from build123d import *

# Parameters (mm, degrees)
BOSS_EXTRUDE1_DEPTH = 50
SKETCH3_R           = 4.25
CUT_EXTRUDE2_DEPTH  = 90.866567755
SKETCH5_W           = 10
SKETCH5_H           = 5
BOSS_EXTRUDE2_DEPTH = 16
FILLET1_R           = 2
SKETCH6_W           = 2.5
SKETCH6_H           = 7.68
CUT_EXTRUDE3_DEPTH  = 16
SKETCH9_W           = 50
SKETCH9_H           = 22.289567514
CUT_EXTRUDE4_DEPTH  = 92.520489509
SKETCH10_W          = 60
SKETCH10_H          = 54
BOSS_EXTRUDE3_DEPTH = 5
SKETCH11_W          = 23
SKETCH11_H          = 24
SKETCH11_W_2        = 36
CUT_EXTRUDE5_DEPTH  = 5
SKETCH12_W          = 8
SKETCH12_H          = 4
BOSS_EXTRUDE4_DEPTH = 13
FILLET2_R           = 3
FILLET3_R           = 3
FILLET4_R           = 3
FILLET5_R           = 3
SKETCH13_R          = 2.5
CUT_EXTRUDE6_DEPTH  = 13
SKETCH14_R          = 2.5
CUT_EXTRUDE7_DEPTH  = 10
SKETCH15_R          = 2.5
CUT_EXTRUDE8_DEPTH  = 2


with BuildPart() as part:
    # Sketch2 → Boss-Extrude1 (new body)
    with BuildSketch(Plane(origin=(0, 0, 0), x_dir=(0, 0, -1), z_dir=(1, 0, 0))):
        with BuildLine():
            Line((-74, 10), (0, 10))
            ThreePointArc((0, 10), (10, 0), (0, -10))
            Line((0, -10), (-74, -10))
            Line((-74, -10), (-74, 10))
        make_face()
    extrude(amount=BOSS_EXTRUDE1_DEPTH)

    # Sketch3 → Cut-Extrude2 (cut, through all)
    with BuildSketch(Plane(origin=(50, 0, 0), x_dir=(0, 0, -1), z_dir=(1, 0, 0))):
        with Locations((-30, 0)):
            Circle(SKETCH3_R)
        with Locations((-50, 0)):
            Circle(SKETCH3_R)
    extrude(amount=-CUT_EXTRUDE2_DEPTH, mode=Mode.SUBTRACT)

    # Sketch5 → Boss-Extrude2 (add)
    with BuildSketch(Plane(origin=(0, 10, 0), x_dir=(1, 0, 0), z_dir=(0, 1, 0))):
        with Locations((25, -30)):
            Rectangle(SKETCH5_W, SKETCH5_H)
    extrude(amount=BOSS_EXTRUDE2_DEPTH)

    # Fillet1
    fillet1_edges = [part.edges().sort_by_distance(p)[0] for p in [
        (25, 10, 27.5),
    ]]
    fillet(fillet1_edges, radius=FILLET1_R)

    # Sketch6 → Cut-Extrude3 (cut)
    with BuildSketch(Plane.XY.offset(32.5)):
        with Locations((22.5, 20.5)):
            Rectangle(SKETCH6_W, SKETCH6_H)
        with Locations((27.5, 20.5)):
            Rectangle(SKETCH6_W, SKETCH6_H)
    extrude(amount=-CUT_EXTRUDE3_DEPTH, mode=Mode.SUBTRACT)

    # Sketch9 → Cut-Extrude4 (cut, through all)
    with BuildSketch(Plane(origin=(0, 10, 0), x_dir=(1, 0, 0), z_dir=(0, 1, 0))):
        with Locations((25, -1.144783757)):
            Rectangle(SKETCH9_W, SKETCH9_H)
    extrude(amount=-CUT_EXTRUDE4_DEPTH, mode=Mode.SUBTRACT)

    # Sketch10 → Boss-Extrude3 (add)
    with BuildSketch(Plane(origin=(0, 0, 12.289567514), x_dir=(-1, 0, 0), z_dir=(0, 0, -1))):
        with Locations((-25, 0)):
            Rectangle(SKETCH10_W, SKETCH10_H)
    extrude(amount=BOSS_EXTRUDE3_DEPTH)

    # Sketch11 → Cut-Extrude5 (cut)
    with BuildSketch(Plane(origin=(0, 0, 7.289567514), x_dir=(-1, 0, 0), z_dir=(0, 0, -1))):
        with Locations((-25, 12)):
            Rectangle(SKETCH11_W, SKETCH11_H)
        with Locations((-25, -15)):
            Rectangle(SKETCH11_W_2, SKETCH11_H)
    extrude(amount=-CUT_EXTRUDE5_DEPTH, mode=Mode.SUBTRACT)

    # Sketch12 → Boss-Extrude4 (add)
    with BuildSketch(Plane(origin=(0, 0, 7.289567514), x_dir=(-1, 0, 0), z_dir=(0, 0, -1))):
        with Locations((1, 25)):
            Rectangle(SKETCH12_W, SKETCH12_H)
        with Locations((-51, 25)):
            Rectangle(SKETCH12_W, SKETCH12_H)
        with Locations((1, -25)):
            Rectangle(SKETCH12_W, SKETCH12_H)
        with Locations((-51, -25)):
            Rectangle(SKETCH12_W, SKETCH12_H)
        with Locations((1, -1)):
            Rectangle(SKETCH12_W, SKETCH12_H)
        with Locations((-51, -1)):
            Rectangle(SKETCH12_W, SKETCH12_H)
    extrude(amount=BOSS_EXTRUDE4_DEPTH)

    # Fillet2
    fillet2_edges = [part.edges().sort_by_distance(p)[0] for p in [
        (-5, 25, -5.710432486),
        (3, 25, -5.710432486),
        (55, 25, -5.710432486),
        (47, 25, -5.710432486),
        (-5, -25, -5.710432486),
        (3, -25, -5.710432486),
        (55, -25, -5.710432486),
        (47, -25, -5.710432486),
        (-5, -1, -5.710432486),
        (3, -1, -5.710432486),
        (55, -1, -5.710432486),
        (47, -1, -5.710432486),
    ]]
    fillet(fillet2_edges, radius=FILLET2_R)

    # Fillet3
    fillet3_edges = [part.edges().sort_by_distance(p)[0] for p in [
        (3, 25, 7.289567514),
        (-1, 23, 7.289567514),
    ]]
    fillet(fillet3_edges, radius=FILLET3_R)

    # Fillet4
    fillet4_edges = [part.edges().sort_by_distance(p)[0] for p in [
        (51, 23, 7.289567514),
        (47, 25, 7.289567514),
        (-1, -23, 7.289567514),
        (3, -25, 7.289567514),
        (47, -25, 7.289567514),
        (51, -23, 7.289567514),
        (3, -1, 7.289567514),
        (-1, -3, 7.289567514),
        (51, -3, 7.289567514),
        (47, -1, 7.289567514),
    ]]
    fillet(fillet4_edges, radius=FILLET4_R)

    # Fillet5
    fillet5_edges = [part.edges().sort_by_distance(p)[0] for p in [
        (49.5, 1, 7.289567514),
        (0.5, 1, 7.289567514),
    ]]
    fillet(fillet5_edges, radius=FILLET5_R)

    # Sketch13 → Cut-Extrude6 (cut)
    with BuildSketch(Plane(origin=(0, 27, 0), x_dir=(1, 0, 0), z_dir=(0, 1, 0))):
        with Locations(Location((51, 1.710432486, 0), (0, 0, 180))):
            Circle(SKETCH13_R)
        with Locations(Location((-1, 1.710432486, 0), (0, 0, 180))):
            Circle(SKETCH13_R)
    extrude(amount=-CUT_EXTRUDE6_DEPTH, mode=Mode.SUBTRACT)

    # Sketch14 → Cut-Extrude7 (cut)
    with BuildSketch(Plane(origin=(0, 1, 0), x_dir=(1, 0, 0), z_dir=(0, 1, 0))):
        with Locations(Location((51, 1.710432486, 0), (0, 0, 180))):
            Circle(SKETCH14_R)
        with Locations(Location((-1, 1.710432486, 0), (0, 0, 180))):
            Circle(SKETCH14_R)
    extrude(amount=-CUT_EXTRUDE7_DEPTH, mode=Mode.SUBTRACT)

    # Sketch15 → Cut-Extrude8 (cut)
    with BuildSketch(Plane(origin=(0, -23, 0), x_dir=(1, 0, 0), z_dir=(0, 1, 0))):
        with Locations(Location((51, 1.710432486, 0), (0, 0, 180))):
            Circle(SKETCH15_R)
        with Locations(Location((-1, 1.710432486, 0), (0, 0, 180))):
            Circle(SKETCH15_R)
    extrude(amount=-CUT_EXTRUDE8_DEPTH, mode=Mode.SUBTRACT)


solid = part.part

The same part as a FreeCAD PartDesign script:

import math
import FreeCAD as App
import Part
import Sketcher

V = App.Vector


def edges_at(feature, points):
    """Names of the edges that pass closest to the given points."""
    edges = feature.Shape.Edges
    near = lambda p: min(range(len(edges)), key=lambda i: edges[i].distToShape(Part.Vertex(*p))[0])
    return sorted({f"Edge{near(p) + 1}" for p in points})


def add_polygon(sketch, points):
    """Adds a closed chain of lines whose ends are joined by coincident constraints."""
    first, n = sketch.GeometryCount, len(points)
    for a, b in zip(points, points[1:] + points[:1]):
        sketch.addGeometry(Part.LineSegment(App.Vector(*a, 0), App.Vector(*b, 0)), False)
    for i in range(n):
        sketch.addConstraint(Sketcher.Constraint("Coincident", first + i, 2, first + (i + 1) % n, 1))

doc = App.newDocument("Part")
params = doc.addObject("Spreadsheet::Sheet", "Params")
for row, (alias, value) in enumerate([
    ("sketch1_radius", "10 mm"),
    ("sketch1_height", "74 mm"),
    ("pad1_length", "50 mm"),
    ("sketch2_diameter", "8.5 mm"),
    ("sketch3_width", "10 mm"),
    ("sketch3_height", "5 mm"),
    ("pad2_length", "16 mm"),
    ("fillet_radius", "2 mm"),
    ("sketch4_width", "2.5 mm"),
    ("sketch4_height", "7.68 mm"),
    ("pocket2_length", "16 mm"),
    ("sketch5_width", "50 mm"),
    ("sketch6_width", "60 mm"),
    ("sketch6_height", "54 mm"),
    ("pad3_length", "5 mm"),
    ("sketch7_width", "23 mm"),
    ("sketch7_width2", "36 mm"),
    ("sketch7_height", "24 mm"),
    ("pocket4_length", "5 mm"),
    ("sketch8_width", "8 mm"),
    ("sketch8_height", "4 mm"),
    ("pad4_length", "13 mm"),
    ("fillet2_radius", "3 mm"),
    ("fillet3_radius", "3 mm"),
    ("fillet4_radius", "3 mm"),
    ("fillet5_radius", "3 mm"),
    ("sketch9_diameter", "5 mm"),
    ("pocket5_length", "13 mm"),
    ("sketch10_diameter", "5 mm"),
    ("pocket6_length", "10 mm"),
    ("sketch11_diameter", "5 mm"),
    ("pocket7_length", "2 mm"),
], start=1):
    params.set(f"A{row}", alias)
    params.set(f"B{row}", "=" + value)
    params.setAlias(f"B{row}", alias)

body = doc.addObject("PartDesign::Body", "Body")

sketch1 = body.newObject("Sketcher::SketchObject", "Sketch")
sketch1.AttachmentSupport = (doc.getObject("YZ_Plane"), [""])
sketch1.MapMode = "FlatFace"
sketch1.addGeometry([
    Part.LineSegment(V(10, 0, 0), V(10, 74, 0)),
    Part.LineSegment(V(10, 74, 0), V(-10, 74, 0)),
    Part.LineSegment(V(-10, 74, 0), V(-10, 0, 0)),
    Part.ArcOfCircle(Part.Circle(V(0, 0, 0), V(0, 0, 1), 10), math.radians(180), math.radians(360)),
], False)
sketch1.addConstraint([
    Sketcher.Constraint("Coincident", 0, 2, 1, 1),
    Sketcher.Constraint("Coincident", 1, 2, 2, 1),
    Sketcher.Constraint("Tangent", 2, 2, 3, 1),
    Sketcher.Constraint("Tangent", 3, 2, 0, 1),
    Sketcher.Constraint("Vertical", 0),
    Sketcher.Constraint("Horizontal", 1),
    Sketcher.Constraint("Vertical", 2),
    Sketcher.Constraint("Coincident", 3, 3, -1, 1),
    Sketcher.Constraint("Radius", 3, 10.0),
    Sketcher.Constraint("DistanceY", 0, 1, 0, 2, 74.0),
])
sketch1.setExpression("Constraints[8]", "Params.sketch1_radius")
sketch1.setExpression("Constraints[9]", "Params.sketch1_height")
pad1 = body.newObject("PartDesign::Pad", "Pad")
pad1.Profile = sketch1
pad1.setExpression("Length", "Params.pad1_length")

sketch2 = body.newObject("Sketcher::SketchObject", "Sketch001")
sketch2.AttachmentSupport = (doc.getObject("YZ_Plane"), [""])
sketch2.MapMode = "FlatFace"
sketch2.AttachmentOffset = App.Placement(V(0, 0, 50), App.Rotation())
sketch2.addGeometry([
    Part.Circle(V(0, 30, 0), V(0, 0, 1), 4.2),
    Part.Circle(V(0, 50, 0), V(0, 0, 1), 4.2),
], False)
sketch2.addConstraint([
    Sketcher.Constraint("Equal", 0, 1),
    Sketcher.Constraint("PointOnObject", 0, 3, -2),
    Sketcher.Constraint("PointOnObject", 1, 3, -2),
    Sketcher.Constraint("Diameter", 0, 8.5),
    Sketcher.Constraint("DistanceY", -1, 1, 0, 3, 30.0),
    Sketcher.Constraint("DistanceY", -1, 1, 1, 3, 50.0),
])
sketch2.setExpression("Constraints[3]", "Params.sketch2_diameter")
pocket1 = body.newObject("PartDesign::Pocket", "Pocket")
pocket1.Profile = sketch2
pocket1.Type = "ThroughAll"

sketch3 = body.newObject("Sketcher::SketchObject", "Sketch002")
sketch3.AttachmentSupport = (doc.getObject("XZ_Plane"), [""])
sketch3.MapMode = "FlatFace"
sketch3.AttachmentOffset = App.Placement(V(0, 0, -10), App.Rotation())
add_polygon(sketch3, [(20, 28), (20, 32), (30, 32), (30, 28)])
sketch3.addConstraint([
    Sketcher.Constraint("Vertical", 0),
    Sketcher.Constraint("Horizontal", 1),
    Sketcher.Constraint("Vertical", 2),
    Sketcher.Constraint("Horizontal", 3),
    Sketcher.Constraint("DistanceX", 1, 1, 1, 2, 10.0),
    Sketcher.Constraint("DistanceY", 0, 1, 0, 2, 5.0),
    Sketcher.Constraint("DistanceX", -1, 1, 0, 2, 20.0),
    Sketcher.Constraint("DistanceY", -1, 1, 0, 2, 32.5),
])
sketch3.setExpression("Constraints[8]", "Params.sketch3_width")
sketch3.setExpression("Constraints[9]", "Params.sketch3_height")
pad2 = body.newObject("PartDesign::Pad", "Pad001")
pad2.Profile = sketch3
pad2.setExpression("Length", "Params.pad2_length")
pad2.Reversed = True
doc.recompute()

fillet = body.newObject("PartDesign::Fillet", "Fillet")
fillet.Base = (pad2, edges_at(pad2, [(25, 10, 27.5)]))
fillet.setExpression("Radius", "Params.fillet_radius")

sketch4 = body.newObject("Sketcher::SketchObject", "Sketch003")
sketch4.AttachmentSupport = (doc.getObject("XY_Plane"), [""])
sketch4.MapMode = "FlatFace"
sketch4.AttachmentOffset = App.Placement(V(0, 0, 32.5), App.Rotation())
add_polygon(sketch4, [(21.2, 24.3), (21.2, 16.7), (23.8, 16.7), (23.8, 24.3)])
add_polygon(sketch4, [(26.2, 24.3), (26.2, 16.7), (28.8, 16.7), (28.8, 24.3)])
sketch4.addConstraint([
    Sketcher.Constraint("Vertical", 0),
    Sketcher.Constraint("Horizontal", 1),
    Sketcher.Constraint("Vertical", 2),
    Sketcher.Constraint("Horizontal", 3),
    Sketcher.Constraint("Vertical", 4),
    Sketcher.Constraint("Horizontal", 5),
    Sketcher.Constraint("Vertical", 6),
    Sketcher.Constraint("Horizontal", 7),
    Sketcher.Constraint("Horizontal", 1, 2, 4, 2),
    Sketcher.Constraint("Horizontal", 3, 2, 6, 2),
    Sketcher.Constraint("Equal", 3, 5),
    Sketcher.Constraint("DistanceX", 1, 1, 1, 2, 2.5),
    Sketcher.Constraint("DistanceX", 0, 2, 4, 2, 5.0),
    Sketcher.Constraint("DistanceY", 0, 2, 0, 1, 7.68),
    Sketcher.Constraint("DistanceX", -1, 1, 0, 2, 21.25),
    Sketcher.Constraint("DistanceY", -1, 1, 0, 2, 16.66),
])
sketch4.setExpression("Constraints[19]", "Params.sketch4_width")
sketch4.setExpression("Constraints[21]", "Params.sketch4_height")
pocket2 = body.newObject("PartDesign::Pocket", "Pocket001")
pocket2.Profile = sketch4
pocket2.setExpression("Length", "Params.pocket2_length")

sketch5 = body.newObject("Sketcher::SketchObject", "Sketch004")
sketch5.AttachmentSupport = (doc.getObject("XZ_Plane"), [""])
sketch5.MapMode = "FlatFace"
sketch5.AttachmentOffset = App.Placement(V(0, 0, -10), App.Rotation())
add_polygon(sketch5, [(0, -10), (0, 12), (50, 12), (50, -10)])
sketch5.addConstraint([
    Sketcher.Constraint("Vertical", 0),
    Sketcher.Constraint("Horizontal", 1),
    Sketcher.Constraint("Vertical", 2),
    Sketcher.Constraint("Horizontal", 3),
    Sketcher.Constraint("PointOnObject", 0, 2, -2),
    Sketcher.Constraint("DistanceX", 1, 1, 1, 2, 50.0),
    Sketcher.Constraint("DistanceY", 2, 2, -1, 1, 10.0),
    Sketcher.Constraint("DistanceY", 0, 1, 0, 2, 22.289568),
])
sketch5.setExpression("Constraints[9]", "Params.sketch5_width")
pocket3 = body.newObject("PartDesign::Pocket", "Pocket002")
pocket3.Profile = sketch5
pocket3.Type = "ThroughAll"
pocket3.Reversed = True

sketch6 = body.newObject("Sketcher::SketchObject", "Sketch005")
sketch6.AttachmentSupport = (doc.getObject("XY_Plane"), [""])
sketch6.MapMode = "FlatFace"
sketch6.AttachmentOffset = App.Placement(V(0, 0, 12.289568), App.Rotation())
add_polygon(sketch6, [(55, 27), (55, -27), (-5, -27), (-5, 27)])
sketch6.addConstraint([
    Sketcher.Constraint("Vertical", 0),
    Sketcher.Constraint("Horizontal", 1),
    Sketcher.Constraint("Vertical", 2),
    Sketcher.Constraint("Horizontal", 3),
    Sketcher.Constraint("DistanceX", 1, 2, 1, 1, 60.0),
    Sketcher.Constraint("DistanceY", 0, 2, 0, 1, 54.0),
    Sketcher.Constraint("DistanceX", -1, 1, 0, 2, 55.0),
    Sketcher.Constraint("DistanceY", 0, 2, -1, 1, 27.0),
])
sketch6.setExpression("Constraints[8]", "Params.sketch6_width")
sketch6.setExpression("Constraints[9]", "Params.sketch6_height")
pad3 = body.newObject("PartDesign::Pad", "Pad002")
pad3.Profile = sketch6
pad3.setExpression("Length", "Params.pad3_length")
pad3.Reversed = True

sketch7 = body.newObject("Sketcher::SketchObject", "Sketch006")
sketch7.AttachmentSupport = (doc.getObject("XY_Plane"), [""])
sketch7.MapMode = "FlatFace"
sketch7.AttachmentOffset = App.Placement(V(0, 0, 7.289568), App.Rotation())
add_polygon(sketch7, [(36, 24), (36, 0), (14, 0), (14, 24)])
add_polygon(sketch7, [(43, -3), (43, -27), (7, -27), (7, -3)])
sketch7.addConstraint([
    Sketcher.Constraint("Vertical", 0),
    Sketcher.Constraint("Horizontal", 1),
    Sketcher.Constraint("Vertical", 2),
    Sketcher.Constraint("Horizontal", 3),
    Sketcher.Constraint("Vertical", 4),
    Sketcher.Constraint("Horizontal", 5),
    Sketcher.Constraint("Vertical", 6),
    Sketcher.Constraint("Horizontal", 7),
    Sketcher.Constraint("PointOnObject", 0, 2, -1),
    Sketcher.Constraint("Equal", 2, 4),
    Sketcher.Constraint("DistanceX", 1, 2, 1, 1, 23.0),
    Sketcher.Constraint("DistanceX", 5, 2, 5, 1, 36.0),
    Sketcher.Constraint("DistanceY", 0, 2, 0, 1, 24.0),
    Sketcher.Constraint("DistanceX", -1, 1, 4, 2, 43.0),
    Sketcher.Constraint("DistanceY", 4, 2, -1, 1, 27.0),
    Sketcher.Constraint("DistanceX", -1, 1, 0, 2, 36.5),
])
sketch7.setExpression("Constraints[18]", "Params.sketch7_width")
sketch7.setExpression("Constraints[19]", "Params.sketch7_width2")
sketch7.setExpression("Constraints[20]", "Params.sketch7_height")
pocket4 = body.newObject("PartDesign::Pocket", "Pocket003")
pocket4.Profile = sketch7
pocket4.setExpression("Length", "Params.pocket4_length")
pocket4.Reversed = True

sketch8 = body.newObject("Sketcher::SketchObject", "Sketch007")
sketch8.AttachmentSupport = (doc.getObject("XY_Plane"), [""])
sketch8.MapMode = "FlatFace"
sketch8.AttachmentOffset = App.Placement(V(0, 0, 7.289568), App.Rotation())
add_polygon(sketch8, [(3, 27), (3, 23), (-5, 23), (-5, 27)])
add_polygon(sketch8, [(55, 27), (55, 23), (47, 23), (47, 27)])
add_polygon(sketch8, [(3, -23), (3, -27), (-5, -27), (-5, -23)])
add_polygon(sketch8, [(55, -23), (55, -27), (47, -27), (47, -23)])
add_polygon(sketch8, [(3, 1), (3, -3), (-5, -3), (-5, 1)])
add_polygon(sketch8, [(55, 1), (55, -3), (47, -3), (47, 1)])
sketch8.addConstraint([
    Sketcher.Constraint("Vertical", 0),
    Sketcher.Constraint("Horizontal", 1),
    Sketcher.Constraint("Vertical", 2),
    Sketcher.Constraint("Horizontal", 3),
    Sketcher.Constraint("Vertical", 4),
    Sketcher.Constraint("Horizontal", 5),
    Sketcher.Constraint("Vertical", 6),
    Sketcher.Constraint("Horizontal", 7),
    Sketcher.Constraint("Vertical", 8),
    Sketcher.Constraint("Horizontal", 9),
    Sketcher.Constraint("Vertical", 10),
    Sketcher.Constraint("Horizontal", 11),
    Sketcher.Constraint("Vertical", 12),
    Sketcher.Constraint("Horizontal", 13),
    Sketcher.Constraint("Vertical", 14),
    Sketcher.Constraint("Horizontal", 15),
    Sketcher.Constraint("Vertical", 16),
    Sketcher.Constraint("Horizontal", 17),
    Sketcher.Constraint("Vertical", 18),
    Sketcher.Constraint("Horizontal", 19),
    Sketcher.Constraint("Vertical", 20),
    Sketcher.Constraint("Horizontal", 21),
    Sketcher.Constraint("Vertical", 22),
    Sketcher.Constraint("Horizontal", 23),
    Sketcher.Constraint("Symmetric", 3, 2, 8, 2, -1),
    Sketcher.Constraint("Symmetric", 1, 2, 10, 2, -1),
    Sketcher.Constraint("Symmetric", 7, 2, 12, 2, -1),
    Sketcher.Constraint("Symmetric", 5, 2, 14, 2, -1),
    Sketcher.Constraint("Horizontal", 1, 2, 4, 2),
    Sketcher.Constraint("Horizontal", 3, 2, 6, 2),
    Sketcher.Constraint("Horizontal", 17, 2, 20, 2),
    Sketcher.Constraint("Horizontal", 19, 2, 22, 2),
    Sketcher.Constraint("Vertical", 11, 2, 16, 2),
    Sketcher.Constraint("Vertical", 10, 2, 17, 2),
    Sketcher.Constraint("Vertical", 15, 2, 20, 2),
    Sketcher.Constraint("Vertical", 14, 2, 21, 2),
    Sketcher.Constraint("Equal", 3, 5),
    Sketcher.Constraint("Equal", 14, 16),
    Sketcher.Constraint("DistanceX", 1, 2, 1, 1, 8.0),
    Sketcher.Constraint("DistanceY", 0, 2, 0, 1, 4.0),
    Sketcher.Constraint("DistanceX", -1, 1, 0, 2, 3.0),
    Sketcher.Constraint("DistanceY", -1, 1, 0, 2, 23.0),
    Sketcher.Constraint("DistanceX", -1, 1, 4, 2, 55.0),
    Sketcher.Constraint("DistanceY", 16, 2, -1, 1, 3.0),
])
sketch8.setExpression("Constraints[62]", "Params.sketch8_width")
sketch8.setExpression("Constraints[63]", "Params.sketch8_height")
pad4 = body.newObject("PartDesign::Pad", "Pad003")
pad4.Profile = sketch8
pad4.setExpression("Length", "Params.pad4_length")
pad4.Reversed = True
doc.recompute()

fillet2 = body.newObject("PartDesign::Fillet", "Fillet001")
fillet2.Base = (pad4, edges_at(pad4, [
    (-5, 25, -5.71),
    (3, 25, -5.71),
    (55, 25, -5.71),
    (47, 25, -5.71),
    (-5, -25, -5.71),
    (3, -25, -5.71),
    (55, -25, -5.71),
    (47, -25, -5.71),
    (-5, -1, -5.71),
    (3, -1, -5.71),
    (55, -1, -5.71),
    (47, -1, -5.71),
]))
fillet2.setExpression("Radius", "Params.fillet2_radius")
doc.recompute()

fillet3 = body.newObject("PartDesign::Fillet", "Fillet002")
fillet3.Base = (fillet2, edges_at(fillet2, [(3, 25, 7.29), (-1, 23, 7.29)]))
fillet3.setExpression("Radius", "Params.fillet3_radius")
doc.recompute()

fillet4 = body.newObject("PartDesign::Fillet", "Fillet003")
fillet4.Base = (fillet3, edges_at(fillet3, [
    (51, 23, 7.29),
    (47, 25, 7.29),
    (-1, -23, 7.29),
    (3, -25, 7.29),
    (47, -25, 7.29),
    (51, -23, 7.29),
    (3, -1, 7.29),
    (-1, -3, 7.29),
    (51, -3, 7.29),
    (47, -1, 7.29),
]))
fillet4.setExpression("Radius", "Params.fillet4_radius")
doc.recompute()

fillet5 = body.newObject("PartDesign::Fillet", "Fillet004")
fillet5.Base = (fillet4, edges_at(fillet4, [(49.5, 1, 7.29), (0.5, 1, 7.29)]))
fillet5.setExpression("Radius", "Params.fillet5_radius")

sketch9 = body.newObject("Sketcher::SketchObject", "Sketch008")
sketch9.AttachmentSupport = (doc.getObject("XZ_Plane"), [""])
sketch9.MapMode = "FlatFace"
sketch9.AttachmentOffset = App.Placement(V(0, 0, -27), App.Rotation())
sketch9.addGeometry([
    Part.Circle(V(51, -1.7, 0), V(0, 0, 1), 2.5),
    Part.Circle(V(-1, -1.7, 0), V(0, 0, 1), 2.5),
], False)
sketch9.addConstraint([
    Sketcher.Constraint("Equal", 0, 1),
    Sketcher.Constraint("Horizontal", 0, 3, 1, 3),
    Sketcher.Constraint("Diameter", 0, 5.0),
    Sketcher.Constraint("DistanceX", -1, 1, 0, 3, 51.0),
    Sketcher.Constraint("DistanceX", 1, 3, -1, 1, 1.0),
    Sketcher.Constraint("DistanceY", 0, 3, -1, 1, 1.710432),
])
sketch9.setExpression("Constraints[2]", "Params.sketch9_diameter")
pocket5 = body.newObject("PartDesign::Pocket", "Pocket004")
pocket5.Profile = sketch9
pocket5.setExpression("Length", "Params.pocket5_length")
pocket5.Reversed = True

sketch10 = body.newObject("Sketcher::SketchObject", "Sketch009")
sketch10.AttachmentSupport = (doc.getObject("XZ_Plane"), [""])
sketch10.MapMode = "FlatFace"
sketch10.AttachmentOffset = App.Placement(V(0, 0, -1), App.Rotation())
sketch10.addGeometry([
    Part.Circle(V(51, -1.7, 0), V(0, 0, 1), 2.5),
    Part.Circle(V(-1, -1.7, 0), V(0, 0, 1), 2.5),
], False)
sketch10.addConstraint([
    Sketcher.Constraint("Equal", 0, 1),
    Sketcher.Constraint("Horizontal", 0, 3, 1, 3),
    Sketcher.Constraint("Diameter", 0, 5.0),
    Sketcher.Constraint("DistanceX", -1, 1, 0, 3, 51.0),
    Sketcher.Constraint("DistanceX", 1, 3, -1, 1, 1.0),
    Sketcher.Constraint("DistanceY", 0, 3, -1, 1, 1.710432),
])
sketch10.setExpression("Constraints[2]", "Params.sketch10_diameter")
pocket6 = body.newObject("PartDesign::Pocket", "Pocket005")
pocket6.Profile = sketch10
pocket6.setExpression("Length", "Params.pocket6_length")
pocket6.Reversed = True

sketch11 = body.newObject("Sketcher::SketchObject", "Sketch010")
sketch11.AttachmentSupport = (doc.getObject("XZ_Plane"), [""])
sketch11.MapMode = "FlatFace"
sketch11.AttachmentOffset = App.Placement(V(0, 0, 23), App.Rotation())
sketch11.addGeometry([
    Part.Circle(V(51, -1.7, 0), V(0, 0, 1), 2.5),
    Part.Circle(V(-1, -1.7, 0), V(0, 0, 1), 2.5),
], False)
sketch11.addConstraint([
    Sketcher.Constraint("Equal", 0, 1),
    Sketcher.Constraint("Horizontal", 0, 3, 1, 3),
    Sketcher.Constraint("Diameter", 0, 5.0),
    Sketcher.Constraint("DistanceX", -1, 1, 0, 3, 51.0),
    Sketcher.Constraint("DistanceX", 1, 3, -1, 1, 1.0),
    Sketcher.Constraint("DistanceY", 0, 3, -1, 1, 1.710432),
])
sketch11.setExpression("Constraints[2]", "Params.sketch11_diameter")
pocket7 = body.newObject("PartDesign::Pocket", "Pocket006")
pocket7.Profile = sketch11
pocket7.setExpression("Length", "Params.pocket7_length")
pocket7.Reversed = True

doc.recompute()
